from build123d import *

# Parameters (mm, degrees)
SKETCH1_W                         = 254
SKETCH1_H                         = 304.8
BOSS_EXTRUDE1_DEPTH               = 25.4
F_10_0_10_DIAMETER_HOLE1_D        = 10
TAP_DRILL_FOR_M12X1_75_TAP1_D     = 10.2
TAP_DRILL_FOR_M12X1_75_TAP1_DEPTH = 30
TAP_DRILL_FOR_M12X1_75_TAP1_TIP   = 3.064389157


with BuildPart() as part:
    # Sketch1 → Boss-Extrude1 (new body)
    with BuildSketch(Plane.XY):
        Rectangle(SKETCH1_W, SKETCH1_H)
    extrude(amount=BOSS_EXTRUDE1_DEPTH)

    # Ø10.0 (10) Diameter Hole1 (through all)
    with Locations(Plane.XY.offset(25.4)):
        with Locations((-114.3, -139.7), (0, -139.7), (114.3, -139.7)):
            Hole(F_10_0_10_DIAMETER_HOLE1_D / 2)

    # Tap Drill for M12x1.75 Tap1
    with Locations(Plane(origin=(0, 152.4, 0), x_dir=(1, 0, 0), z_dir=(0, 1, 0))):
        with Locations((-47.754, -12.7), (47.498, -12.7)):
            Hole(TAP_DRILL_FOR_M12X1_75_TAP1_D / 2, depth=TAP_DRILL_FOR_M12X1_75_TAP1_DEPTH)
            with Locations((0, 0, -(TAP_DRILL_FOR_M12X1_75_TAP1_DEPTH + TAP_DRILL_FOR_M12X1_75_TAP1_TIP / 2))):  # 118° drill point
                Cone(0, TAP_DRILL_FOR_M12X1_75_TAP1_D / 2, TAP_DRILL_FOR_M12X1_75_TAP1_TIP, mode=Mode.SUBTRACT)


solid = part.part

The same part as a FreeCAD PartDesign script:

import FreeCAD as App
import Part
import Sketcher

V = App.Vector

doc = App.newDocument("Part")
body = doc.addObject("PartDesign::Body", "Body")

# Sketch on XY plane
sketch1 = body.newObject("Sketcher::SketchObject", "Sketch")
sketch1.AttachmentSupport = (doc.getObject("XY_Plane"), [""])
sketch1.MapMode = "FlatFace"
sketch1.addGeometry(Part.LineSegment(V(-127, 152, 0), V(-127, -152, 0)), False)
sketch1.addGeometry(Part.LineSegment(V(-127, -152, 0), V(127, -152, 0)), False)
sketch1.addGeometry(Part.LineSegment(V(127, -152, 0), V(127, 152, 0)), False)
sketch1.addGeometry(Part.LineSegment(V(127, 152, 0), V(-127, 152, 0)), False)
sketch1.addConstraint(Sketcher.Constraint("Coincident", 0, 2, 1, 1))
sketch1.addConstraint(Sketcher.Constraint("Coincident", 1, 2, 2, 1))
sketch1.addConstraint(Sketcher.Constraint("Coincident", 2, 2, 3, 1))
sketch1.addConstraint(Sketcher.Constraint("Coincident", 3, 2, 0, 1))
sketch1.addConstraint(Sketcher.Constraint("Vertical", 0))
sketch1.addConstraint(Sketcher.Constraint("Horizontal", 1))
sketch1.addConstraint(Sketcher.Constraint("Vertical", 2))
sketch1.addConstraint(Sketcher.Constraint("Horizontal", 3))
sketch1.addConstraint(Sketcher.Constraint("Symmetric", 0, 2, 2, 2, -1, 1))
sketch1.addConstraint(Sketcher.Constraint("DistanceX", 1, 1, 1, 2, 254.0))
sketch1.addConstraint(Sketcher.Constraint("DistanceY", 0, 2, 0, 1, 304.8))
pad1 = body.newObject("PartDesign::Pad", "Pad")
pad1.Profile = sketch1
pad1.Length = 25.4

# Sketch on XY plane
sketch2 = body.newObject("Sketcher::SketchObject", "Sketch001")
sketch2.AttachmentSupport = (doc.getObject("XY_Plane"), [""])
sketch2.MapMode = "FlatFace"
sketch2.AttachmentOffset = App.Placement(V(0, 0, 25.4), App.Rotation())
sketch2.addGeometry(Part.Circle(V(-114, -140, 0), V(0, 0, 1), 5), False)
sketch2.addGeometry(Part.Circle(V(0, -140, 0), V(0, 0, 1), 5), False)
sketch2.addGeometry(Part.Circle(V(114, -140, 0), V(0, 0, 1), 5), False)
sketch2.addConstraint(Sketcher.Constraint("Equal", 0, 1))
sketch2.addConstraint(Sketcher.Constraint("Equal", 1, 2))
sketch2.addConstraint(Sketcher.Constraint("Symmetric", 0, 3, 2, 3, -2))
sketch2.addConstraint(Sketcher.Constraint("PointOnObject", 1, 3, -2))
sketch2.addConstraint(Sketcher.Constraint("Horizontal", 0, 3, 1, 3))
sketch2.addConstraint(Sketcher.Constraint("Diameter", 0, 10.0))
sketch2.addConstraint(Sketcher.Constraint("DistanceX", 0, 3, -1, 1, 114.3))
sketch2.addConstraint(Sketcher.Constraint("DistanceY", 0, 3, -1, 1, 139.7))
doc.recompute()
hole = body.newObject("PartDesign::Hole", "Hole")
hole.Profile = sketch2
hole.ThreadType = "None"
hole.Diameter = 10
hole.DepthType = "ThroughAll"

# Sketch on XZ plane
sketch3 = body.newObject("Sketcher::SketchObject", "Sketch002")
sketch3.AttachmentSupport = (doc.getObject("XZ_Plane"), [""])
sketch3.MapMode = "FlatFace"
sketch3.AttachmentOffset = App.Placement(V(0, 0, -152.4), App.Rotation())
sketch3.addGeometry(Part.Circle(V(-48, 13, 0), V(0, 0, 1), 5), False)
sketch3.addGeometry(Part.Circle(V(47, 13, 0), V(0, 0, 1), 5), False)
sketch3.addConstraint(Sketcher.Constraint("Equal", 0, 1))
sketch3.addConstraint(Sketcher.Constraint("Horizontal", 0, 3, 1, 3))
sketch3.addConstraint(Sketcher.Constraint("Diameter", 0, 10.2))
sketch3.addConstraint(Sketcher.Constraint("DistanceY", -1, 1, 0, 3, 12.7))
sketch3.addConstraint(Sketcher.Constraint("DistanceX", 0, 3, -1, 1, 47.754))
sketch3.addConstraint(Sketcher.Constraint("DistanceX", -1, 1, 1, 3, 47.498))
doc.recompute()
hole2 = body.newObject("PartDesign::Hole", "Hole001")
hole2.Profile = sketch3
hole2.ThreadType = "None"
hole2.Diameter = 10.2
hole2.DepthType = "Dimension"
hole2.Depth = 30
hole2.DrillPoint = "Angled"
hole2.DrillPointAngle = 118
hole2.Reversed = True

doc.recompute()
